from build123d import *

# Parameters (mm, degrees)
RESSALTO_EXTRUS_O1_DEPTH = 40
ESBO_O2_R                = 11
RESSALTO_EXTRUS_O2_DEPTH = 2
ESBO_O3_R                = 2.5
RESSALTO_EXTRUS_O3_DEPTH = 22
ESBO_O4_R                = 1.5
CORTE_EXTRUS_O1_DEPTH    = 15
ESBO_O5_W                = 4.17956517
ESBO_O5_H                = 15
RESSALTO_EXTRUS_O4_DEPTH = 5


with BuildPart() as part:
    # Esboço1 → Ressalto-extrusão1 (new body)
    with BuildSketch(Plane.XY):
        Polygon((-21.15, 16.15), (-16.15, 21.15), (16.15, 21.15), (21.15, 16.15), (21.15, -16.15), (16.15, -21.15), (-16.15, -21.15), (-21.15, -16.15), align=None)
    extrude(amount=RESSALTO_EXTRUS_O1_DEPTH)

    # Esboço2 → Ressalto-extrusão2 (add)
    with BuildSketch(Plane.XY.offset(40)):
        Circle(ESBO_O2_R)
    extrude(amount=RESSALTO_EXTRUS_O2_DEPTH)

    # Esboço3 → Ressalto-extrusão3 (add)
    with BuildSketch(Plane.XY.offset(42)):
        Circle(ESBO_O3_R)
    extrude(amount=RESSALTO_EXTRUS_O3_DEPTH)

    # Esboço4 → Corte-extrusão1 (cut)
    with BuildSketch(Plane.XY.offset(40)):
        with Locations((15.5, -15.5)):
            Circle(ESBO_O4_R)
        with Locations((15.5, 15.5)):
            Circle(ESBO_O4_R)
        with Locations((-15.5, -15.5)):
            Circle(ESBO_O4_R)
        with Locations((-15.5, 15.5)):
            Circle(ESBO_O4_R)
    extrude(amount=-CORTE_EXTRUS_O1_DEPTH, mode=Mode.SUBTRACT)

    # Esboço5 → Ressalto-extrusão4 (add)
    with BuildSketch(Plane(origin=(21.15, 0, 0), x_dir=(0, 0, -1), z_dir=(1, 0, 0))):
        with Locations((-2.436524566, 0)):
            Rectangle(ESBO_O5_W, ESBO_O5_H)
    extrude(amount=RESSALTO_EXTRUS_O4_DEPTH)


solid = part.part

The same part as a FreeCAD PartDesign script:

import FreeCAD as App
import Part
import Sketcher
Q = App.Units.Quantity

doc = App.newDocument("Part")
body = doc.addObject("PartDesign::Body", "Body")

# Sketch on XY plane
sketch1 = body.newObject("Sketcher::SketchObject", "Sketch")
sketch1.AttachmentSupport = (doc.getObject("XY_Plane"), [""])
sketch1.MapMode = "FlatFace"
sketch1.addGeometry(Part.LineSegment(App.Vector(-16.15, 21.15, 0), App.Vector(-21.15, 16.15, 0)), False)
sketch1.addGeometry(Part.LineSegment(App.Vector(-21.15, 16.15, 0), App.Vector(-21.15, -16.15, 0)), False)
sketch1.addGeometry(Part.LineSegment(App.Vector(-21.15, -16.15, 0), App.Vector(-16.15, -21.15, 0)), False)
sketch1.addGeometry(Part.LineSegment(App.Vector(-16.15, -21.15, 0), App.Vector(16.15, -21.15, 0)), False)
sketch1.addGeometry(Part.LineSegment(App.Vector(16.15, -21.15, 0), App.Vector(21.15, -16.15, 0)), False)
sketch1.addGeometry(Part.LineSegment(App.Vector(21.15, -16.15, 0), App.Vector(21.15, 16.15, 0)), False)
sketch1.addGeometry(Part.LineSegment(App.Vector(21.15, 16.15, 0), App.Vector(16.15, 21.15, 0)), False)
sketch1.addGeometry(Part.LineSegment(App.Vector(16.15, 21.15, 0), App.Vector(-16.15, 21.15, 0)), False)
sketch1.addConstraint(Sketcher.Constraint("Coincident", 0, 2, 1, 1))
sketch1.addConstraint(Sketcher.Constraint("Coincident", 1, 2, 2, 1))
sketch1.addConstraint(Sketcher.Constraint("Coincident", 2, 2, 3, 1))
sketch1.addConstraint(Sketcher.Constraint("Coincident", 3, 2, 4, 1))
sketch1.addConstraint(Sketcher.Constraint("Coincident", 4, 2, 5, 1))
sketch1.addConstraint(Sketcher.Constraint("Coincident", 5, 2, 6, 1))
sketch1.addConstraint(Sketcher.Constraint("Coincident", 6, 2, 7, 1))
sketch1.addConstraint(Sketcher.Constraint("Coincident", 7, 2, 0, 1))
sketch1.addConstraint(Sketcher.Constraint("Vertical", 1))
sketch1.addConstraint(Sketcher.Constraint("Horizontal", 3))
sketch1.addConstraint(Sketcher.Constraint("Vertical", 5))
sketch1.addConstraint(Sketcher.Constraint("Horizontal", 7))
sketch1.addConstraint(Sketcher.Constraint("Symmetric", 0, 2, 4, 2, -1, 1))
sketch1.addConstraint(Sketcher.Constraint("Symmetric", 2, 2, 6, 2, -1, 1))
sketch1.addConstraint(Sketcher.Constraint("Perpendicular", 0, 2))
sketch1.addConstraint(Sketcher.Constraint("Perpendicular", 2, 4))
sketch1.addConstraint(Sketcher.Constraint("Perpendicular", 4, 6))
sketch1.addConstraint(Sketcher.Constraint("Horizontal", 1, 2, 4, 2))
sketch1.addConstraint(Sketcher.Constraint("Vertical", 3, 2, 6, 2))
sketch1.addConstraint(Sketcher.Constraint("Equal", 7, 1))
sketch1.addConstraint(Sketcher.Constraint("DistanceX", 3, 1, 3, 2, Q("32.3 mm")))
sketch1.addConstraint(Sketcher.Constraint("DistanceX", 1, 2, 2, 2, Q("5 mm")))
pad1 = body.newObject("PartDesign::Pad", "Pad")
pad1.Profile = sketch1
pad1.Length = 40

# Sketch on XY plane
sketch2 = body.newObject("Sketcher::SketchObject", "Sketch001")
sketch2.AttachmentSupport = (doc.getObject("XY_Plane"), [""])
sketch2.MapMode = "FlatFace"
sketch2.AttachmentOffset = App.Placement(App.Vector(0, 0, 40), App.Rotation())
sketch2.addGeometry(Part.Circle(App.Vector(0, 0, 0), App.Vector(0, 0, 1), 11), False)
sketch2.addConstraint(Sketcher.Constraint("Coincident", 0, 3, -1, 1))
sketch2.addConstraint(Sketcher.Constraint("Diameter", 0, Q("22 mm")))
pad2 = body.newObject("PartDesign::Pad", "Pad001")
pad2.Profile = sketch2
pad2.Length = 2

# Sketch on XY plane
sketch3 = body.newObject("Sketcher::SketchObject", "Sketch002")
sketch3.AttachmentSupport = (doc.getObject("XY_Plane"), [""])
sketch3.MapMode = "FlatFace"
sketch3.AttachmentOffset = App.Placement(App.Vector(0, 0, 42), App.Rotation())
sketch3.addGeometry(Part.Circle(App.Vector(0, 0, 0), App.Vector(0, 0, 1), 2.5), False)
sketch3.addConstraint(Sketcher.Constraint("Coincident", 0, 3, -1, 1))
sketch3.addConstraint(Sketcher.Constraint("Diameter", 0, Q("5 mm")))
pad3 = body.newObject("PartDesign::Pad", "Pad002")
pad3.Profile = sketch3
pad3.Length = 22

# Sketch on XY plane
sketch4 = body.newObject("Sketcher::SketchObject", "Sketch003")
sketch4.AttachmentSupport = (doc.getObject("XY_Plane"), [""])
sketch4.MapMode = "FlatFace"
sketch4.AttachmentOffset = App.Placement(App.Vector(0, 0, 40), App.Rotation())
sketch4.addGeometry(Part.Circle(App.Vector(15.5, -15.5, 0), App.Vector(0, 0, 1), 1.5), False)
sketch4.addGeometry(Part.Circle(App.Vector(15.5, 15.5, 0), App.Vector(0, 0, 1), 1.5), False)
sketch4.addGeometry(Part.Circle(App.Vector(-15.5, -15.5, 0), App.Vector(0, 0, 1), 1.5), False)
sketch4.addGeometry(Part.Circle(App.Vector(-15.5, 15.5, 0), App.Vector(0, 0, 1), 1.5), False)
sketch4.addConstraint(Sketcher.Constraint("Equal", 0, 1))
sketch4.addConstraint(Sketcher.Constraint("Equal", 1, 2))
sketch4.addConstraint(Sketcher.Constraint("Equal", 2, 3))
sketch4.addConstraint(Sketcher.Constraint("Symmetric", 1, 3, 2, 3, -1, 1))
sketch4.addConstraint(Sketcher.Constraint("Symmetric", 0, 3, 3, 3, -1, 1))
sketch4.addConstraint(Sketcher.Constraint("Symmetric", 0, 3, 2, 3, -2))
sketch4.addConstraint(Sketcher.Constraint("Diameter", 0, Q("3 mm")))
sketch4.addConstraint(Sketcher.Constraint("DistanceY", 0, 3, 1, 3, Q("31 mm")))
sketch4.addConstraint(Sketcher.Constraint("DistanceX", 2, 3, 0, 3, Q("31 mm")))
pocket1 = body.newObject("PartDesign::Pocket", "Pocket")
pocket1.Profile = sketch4
pocket1.Length = 15

# Sketch on YZ plane
sketch5 = body.newObject("Sketcher::SketchObject", "Sketch004")
sketch5.AttachmentSupport = (doc.getObject("YZ_Plane"), [""])
sketch5.MapMode = "FlatFace"
sketch5.AttachmentOffset = App.Placement(App.Vector(0, 0, 21.15), App.Rotation())
sketch5.addGeometry(Part.LineSegment(App.Vector(7.5, 4.526307, 0), App.Vector(-7.5, 4.526307, 0)), False)
sketch5.addGeometry(Part.LineSegment(App.Vector(-7.5, 4.526307, 0), App.Vector(-7.5, 0.346742, 0)), False)
sketch5.addGeometry(Part.LineSegment(App.Vector(-7.5, 0.346742, 0), App.Vector(7.5, 0.346742, 0)), False)
sketch5.addGeometry(Part.LineSegment(App.Vector(7.5, 0.346742, 0), App.Vector(7.5, 4.526307, 0)), False)
sketch5.addConstraint(Sketcher.Constraint("Coincident", 0, 2, 1, 1))
sketch5.addConstraint(Sketcher.Constraint("Coincident", 1, 2, 2, 1))
sketch5.addConstraint(Sketcher.Constraint("Coincident", 2, 2, 3, 1))
sketch5.addConstraint(Sketcher.Constraint("Coincident", 3, 2, 0, 1))
sketch5.addConstraint(Sketcher.Constraint("Horizontal", 0))
sketch5.addConstraint(Sketcher.Constraint("Vertical", 1))
sketch5.addConstraint(Sketcher.Constraint("Horizontal", 2))
sketch5.addConstraint(Sketcher.Constraint("Vertical", 3))
sketch5.addConstraint(Sketcher.Constraint("DistanceX", 0, 2, 0, 1, Q("15 mm")))
sketch5.addConstraint(Sketcher.Constraint("DistanceX", 0, 2, -1, 1, Q("7.5 mm")))
sketch5.addConstraint(Sketcher.Constraint("DistanceY", 1, 2, 1, 1, Q("4.179565 mm")))
sketch5.addConstraint(Sketcher.Constraint("DistanceY", -1, 1, 1, 2, Q("0.346742 mm")))
pad4 = body.newObject("PartDesign::Pad", "Pad003")
pad4.Profile = sketch5
pad4.Length = 5

doc.recompute()
